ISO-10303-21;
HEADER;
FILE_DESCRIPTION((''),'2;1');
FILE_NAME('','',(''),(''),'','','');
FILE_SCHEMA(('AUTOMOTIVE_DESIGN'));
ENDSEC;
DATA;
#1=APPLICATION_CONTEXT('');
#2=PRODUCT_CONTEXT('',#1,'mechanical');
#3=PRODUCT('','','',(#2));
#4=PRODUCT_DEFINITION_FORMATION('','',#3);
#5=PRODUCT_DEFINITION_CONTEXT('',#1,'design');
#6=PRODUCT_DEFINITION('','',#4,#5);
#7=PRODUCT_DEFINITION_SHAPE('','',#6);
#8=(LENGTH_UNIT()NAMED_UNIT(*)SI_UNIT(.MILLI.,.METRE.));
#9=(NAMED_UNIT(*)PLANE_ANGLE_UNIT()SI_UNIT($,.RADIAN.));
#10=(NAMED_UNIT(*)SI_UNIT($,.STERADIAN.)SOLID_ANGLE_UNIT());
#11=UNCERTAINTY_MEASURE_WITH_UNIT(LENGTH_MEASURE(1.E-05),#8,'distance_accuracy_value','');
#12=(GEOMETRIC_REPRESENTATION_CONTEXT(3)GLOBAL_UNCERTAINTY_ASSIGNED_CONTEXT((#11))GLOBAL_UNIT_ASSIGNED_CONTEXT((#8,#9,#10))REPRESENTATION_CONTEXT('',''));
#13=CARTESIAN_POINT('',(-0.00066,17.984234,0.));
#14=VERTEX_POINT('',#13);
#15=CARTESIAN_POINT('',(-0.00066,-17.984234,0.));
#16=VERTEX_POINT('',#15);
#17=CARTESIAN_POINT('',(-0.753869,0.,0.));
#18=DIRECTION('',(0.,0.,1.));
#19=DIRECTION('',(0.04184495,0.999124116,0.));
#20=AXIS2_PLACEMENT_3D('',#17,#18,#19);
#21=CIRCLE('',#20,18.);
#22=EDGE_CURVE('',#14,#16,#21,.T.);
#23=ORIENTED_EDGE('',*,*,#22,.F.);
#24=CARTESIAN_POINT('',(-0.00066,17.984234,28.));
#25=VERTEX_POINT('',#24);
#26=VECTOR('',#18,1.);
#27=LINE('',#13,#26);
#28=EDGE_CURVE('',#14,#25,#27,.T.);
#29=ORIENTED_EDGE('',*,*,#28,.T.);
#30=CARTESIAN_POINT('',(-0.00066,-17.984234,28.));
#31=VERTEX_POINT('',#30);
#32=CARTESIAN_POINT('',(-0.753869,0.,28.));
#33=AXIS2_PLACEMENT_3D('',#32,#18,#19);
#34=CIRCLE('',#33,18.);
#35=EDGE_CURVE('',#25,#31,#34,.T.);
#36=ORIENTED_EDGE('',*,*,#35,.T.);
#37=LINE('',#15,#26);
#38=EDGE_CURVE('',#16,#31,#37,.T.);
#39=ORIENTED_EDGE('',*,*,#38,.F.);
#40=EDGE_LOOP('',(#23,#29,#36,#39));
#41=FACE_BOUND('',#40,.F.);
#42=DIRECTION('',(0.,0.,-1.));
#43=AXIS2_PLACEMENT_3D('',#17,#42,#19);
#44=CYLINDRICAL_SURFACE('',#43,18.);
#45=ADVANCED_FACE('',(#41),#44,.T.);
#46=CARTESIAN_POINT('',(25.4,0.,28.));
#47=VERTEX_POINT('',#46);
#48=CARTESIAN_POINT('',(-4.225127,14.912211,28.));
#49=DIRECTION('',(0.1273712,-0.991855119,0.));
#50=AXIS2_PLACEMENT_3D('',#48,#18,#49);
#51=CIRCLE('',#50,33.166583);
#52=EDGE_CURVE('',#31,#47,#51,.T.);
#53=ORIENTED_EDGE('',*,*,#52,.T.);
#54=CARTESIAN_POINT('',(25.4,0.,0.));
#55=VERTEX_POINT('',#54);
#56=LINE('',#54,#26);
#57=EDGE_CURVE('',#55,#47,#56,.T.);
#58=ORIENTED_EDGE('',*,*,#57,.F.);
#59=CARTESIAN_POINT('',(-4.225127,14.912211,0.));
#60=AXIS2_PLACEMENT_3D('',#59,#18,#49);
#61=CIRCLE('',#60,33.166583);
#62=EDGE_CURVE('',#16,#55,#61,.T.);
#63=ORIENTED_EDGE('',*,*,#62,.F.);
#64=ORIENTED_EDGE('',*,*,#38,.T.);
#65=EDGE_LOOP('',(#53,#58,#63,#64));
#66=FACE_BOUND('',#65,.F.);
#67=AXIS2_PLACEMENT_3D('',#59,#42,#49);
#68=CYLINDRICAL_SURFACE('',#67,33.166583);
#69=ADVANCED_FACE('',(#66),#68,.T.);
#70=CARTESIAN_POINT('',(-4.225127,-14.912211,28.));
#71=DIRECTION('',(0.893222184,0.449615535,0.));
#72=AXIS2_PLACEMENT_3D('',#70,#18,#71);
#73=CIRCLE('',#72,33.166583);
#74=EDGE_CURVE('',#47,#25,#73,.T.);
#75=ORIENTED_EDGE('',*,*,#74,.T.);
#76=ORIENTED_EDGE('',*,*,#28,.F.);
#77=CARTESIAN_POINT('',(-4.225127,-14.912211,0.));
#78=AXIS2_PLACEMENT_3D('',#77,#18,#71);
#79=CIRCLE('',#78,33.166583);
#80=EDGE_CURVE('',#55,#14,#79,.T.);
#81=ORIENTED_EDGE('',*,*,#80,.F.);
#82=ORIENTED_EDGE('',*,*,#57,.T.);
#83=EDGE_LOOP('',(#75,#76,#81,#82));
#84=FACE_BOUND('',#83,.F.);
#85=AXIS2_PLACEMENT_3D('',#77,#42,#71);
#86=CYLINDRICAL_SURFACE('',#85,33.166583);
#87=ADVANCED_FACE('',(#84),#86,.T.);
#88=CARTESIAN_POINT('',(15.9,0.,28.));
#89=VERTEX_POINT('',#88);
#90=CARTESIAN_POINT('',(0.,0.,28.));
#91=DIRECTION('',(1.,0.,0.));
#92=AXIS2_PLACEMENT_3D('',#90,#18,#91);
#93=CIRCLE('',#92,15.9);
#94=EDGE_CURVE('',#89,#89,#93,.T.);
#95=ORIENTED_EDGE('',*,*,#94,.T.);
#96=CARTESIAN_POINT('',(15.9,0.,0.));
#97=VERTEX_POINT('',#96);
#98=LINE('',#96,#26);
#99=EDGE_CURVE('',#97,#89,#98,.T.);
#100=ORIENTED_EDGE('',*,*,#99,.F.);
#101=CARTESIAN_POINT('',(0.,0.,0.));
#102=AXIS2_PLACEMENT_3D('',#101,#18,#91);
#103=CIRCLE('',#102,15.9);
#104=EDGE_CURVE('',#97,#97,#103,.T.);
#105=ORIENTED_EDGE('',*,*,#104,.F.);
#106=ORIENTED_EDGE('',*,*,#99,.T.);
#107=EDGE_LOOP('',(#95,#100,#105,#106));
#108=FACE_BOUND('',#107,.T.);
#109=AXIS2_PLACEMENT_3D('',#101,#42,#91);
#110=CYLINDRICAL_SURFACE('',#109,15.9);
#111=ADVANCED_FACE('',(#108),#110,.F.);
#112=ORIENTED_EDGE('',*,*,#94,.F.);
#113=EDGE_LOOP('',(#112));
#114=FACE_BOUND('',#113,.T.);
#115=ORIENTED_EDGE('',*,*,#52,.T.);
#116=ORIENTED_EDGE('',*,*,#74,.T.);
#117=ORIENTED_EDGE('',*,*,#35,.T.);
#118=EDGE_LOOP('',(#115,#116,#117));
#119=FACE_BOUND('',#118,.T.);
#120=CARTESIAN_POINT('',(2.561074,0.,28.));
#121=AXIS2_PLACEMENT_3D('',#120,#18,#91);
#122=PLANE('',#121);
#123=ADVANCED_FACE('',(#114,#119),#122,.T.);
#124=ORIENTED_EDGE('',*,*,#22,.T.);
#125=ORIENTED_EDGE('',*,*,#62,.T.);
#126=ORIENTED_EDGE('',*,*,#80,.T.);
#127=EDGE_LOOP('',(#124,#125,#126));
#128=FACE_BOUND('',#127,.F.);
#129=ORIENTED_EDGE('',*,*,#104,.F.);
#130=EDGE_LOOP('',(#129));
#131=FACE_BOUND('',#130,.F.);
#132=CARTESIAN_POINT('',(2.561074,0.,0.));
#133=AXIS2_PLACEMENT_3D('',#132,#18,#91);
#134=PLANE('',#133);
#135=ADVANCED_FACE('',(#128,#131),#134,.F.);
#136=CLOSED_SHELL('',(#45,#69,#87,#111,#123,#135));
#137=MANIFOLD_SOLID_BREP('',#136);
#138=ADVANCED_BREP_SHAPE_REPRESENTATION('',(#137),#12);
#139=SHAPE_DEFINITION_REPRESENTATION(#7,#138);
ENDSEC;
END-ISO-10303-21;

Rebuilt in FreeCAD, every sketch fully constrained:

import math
import FreeCAD as App
import Part
import Sketcher

doc = App.newDocument("Part")
body = doc.addObject("PartDesign::Body", "Body")

sketch1 = body.newObject("Sketcher::SketchObject", "Sketch")
sketch1.AttachmentSupport = (doc.getObject("XY_Plane"), [""])
sketch1.MapMode = "FlatFace"
sketch1.addGeometry([
    Part.ArcOfCircle(Part.Circle(App.Vector(-4.225127, -14.912211, 0), App.Vector(0, 0, 1), 33.166583), math.radians(26.71902), math.radians(82.68229)),
    Part.ArcOfCircle(Part.Circle(App.Vector(-0.753869, 0, 0), App.Vector(0, 0, 1), 18), math.radians(87.601761), math.radians(272.398239)),
    Part.ArcOfCircle(Part.Circle(App.Vector(-4.225127, 14.912211, 0), App.Vector(0, 0, 1), 33.166583), math.radians(-82.68229), math.radians(-26.71902)),
    Part.Circle(App.Vector(0, 0, 0), App.Vector(0, 0, 1), 15.9),
], False)
sketch1.addConstraint([
    Sketcher.Constraint("Coincident", 0, 2, 1, 1),
    Sketcher.Constraint("Coincident", 1, 2, 2, 1),
    Sketcher.Constraint("Coincident", 2, 2, 0, 1),
    Sketcher.Constraint("Coincident", 3, 3, -1, 1),
    Sketcher.Constraint("Equal", 0, 2),
    Sketcher.Constraint("Symmetric", 0, 3, 2, 3, -1),
    Sketcher.Constraint("PointOnObject", 1, 3, -1),
    Sketcher.Constraint("Radius", 1, 18.0),
    Sketcher.Constraint("Diameter", 3, 31.8),
    Sketcher.Constraint("DistanceX", -1, 1, 2, 2, 25.4),
    Sketcher.Constraint("Radius", 0, 33.166583),
    Sketcher.Constraint("DistanceY", 0, 3, -1, 1, 14.912211),
    Sketcher.Constraint("DistanceX", 1, 3, -1, 1, 0.753869),
])
pad1 = body.newObject("PartDesign::Pad", "Pad")
pad1.Profile = sketch1
pad1.Length = 28

doc.recompute()
